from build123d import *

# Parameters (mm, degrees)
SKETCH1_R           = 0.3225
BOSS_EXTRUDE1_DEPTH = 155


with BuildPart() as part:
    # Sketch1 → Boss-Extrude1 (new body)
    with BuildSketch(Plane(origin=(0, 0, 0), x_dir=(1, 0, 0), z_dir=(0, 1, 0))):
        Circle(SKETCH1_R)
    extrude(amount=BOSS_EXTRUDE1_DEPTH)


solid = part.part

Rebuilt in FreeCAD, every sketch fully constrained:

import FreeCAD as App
import Part
import Sketcher
from FreeCAD import Vector
Q = App.Units.Quantity

doc = App.newDocument("Part")
body = doc.addObject("PartDesign::Body", "Body")

sketch1 = body.newObject("Sketcher::SketchObject", "Sketch")
sketch1.AttachmentSupport = (doc.getObject("XZ_Plane"), [""])
sketch1.MapMode = "FlatFace"
sketch1.addGeometry(Part.Circle(Vector(0, 0, 0), Vector(0, 0, 1), 0.32), False)
sketch1.addConstraint([
    Sketcher.Constraint("Coincident", 0, 3, -1, 1),
    Sketcher.Constraint("Diameter", 0, Q("0.645 mm")),
])
pad1 = body.newObject("PartDesign::Pad", "Pad")
pad1.Profile = sketch1
pad1.Length = 155
pad1.Reversed = True

doc.recompute()
